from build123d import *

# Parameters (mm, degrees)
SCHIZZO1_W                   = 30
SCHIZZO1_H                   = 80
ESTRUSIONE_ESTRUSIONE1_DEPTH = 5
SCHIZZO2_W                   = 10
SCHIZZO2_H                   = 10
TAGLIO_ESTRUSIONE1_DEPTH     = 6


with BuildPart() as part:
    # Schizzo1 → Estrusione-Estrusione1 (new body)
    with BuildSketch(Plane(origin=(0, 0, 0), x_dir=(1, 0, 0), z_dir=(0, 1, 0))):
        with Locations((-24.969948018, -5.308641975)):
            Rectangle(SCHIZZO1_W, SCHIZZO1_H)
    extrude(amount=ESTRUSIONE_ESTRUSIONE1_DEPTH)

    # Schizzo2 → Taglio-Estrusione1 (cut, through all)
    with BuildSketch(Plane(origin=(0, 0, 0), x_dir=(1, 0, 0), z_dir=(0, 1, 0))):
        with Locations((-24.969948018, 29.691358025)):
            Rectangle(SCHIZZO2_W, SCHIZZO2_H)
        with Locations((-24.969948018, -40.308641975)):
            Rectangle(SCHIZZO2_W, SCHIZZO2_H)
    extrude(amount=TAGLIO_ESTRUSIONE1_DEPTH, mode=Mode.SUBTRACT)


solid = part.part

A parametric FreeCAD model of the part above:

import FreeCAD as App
import Part
import Sketcher
from FreeCAD import Vector
Q = App.Units.Quantity

doc = App.newDocument("Part")
body = doc.addObject("PartDesign::Body", "Body")

# Sketch on XZ plane
sketch1 = body.newObject("Sketcher::SketchObject", "Sketch")
sketch1.AttachmentSupport = (doc.getObject("XZ_Plane"), [""])
sketch1.MapMode = "FlatFace"
sketch1.addGeometry([
    Part.LineSegment(Vector(-40, -35, 0), Vector(-40, 45, 0)),
    Part.LineSegment(Vector(-40, 45, 0), Vector(-10, 45, 0)),
    Part.LineSegment(Vector(-10, 45, 0), Vector(-10, -35, 0)),
    Part.LineSegment(Vector(-10, -35, 0), Vector(-40, -35, 0)),
], False)
sketch1.addConstraint([
    Sketcher.Constraint("Coincident", 0, 2, 1, 1),
    Sketcher.Constraint("Coincident", 1, 2, 2, 1),
    Sketcher.Constraint("Coincident", 2, 2, 3, 1),
    Sketcher.Constraint("Coincident", 3, 2, 0, 1),
    Sketcher.Constraint("Vertical", 0),
    Sketcher.Constraint("Horizontal", 1),
    Sketcher.Constraint("Vertical", 2),
    Sketcher.Constraint("Horizontal", 3),
    Sketcher.Constraint("DistanceX", 1, 1, 1, 2, Q("30 mm")),
    Sketcher.Constraint("DistanceY", 0, 1, 0, 2, Q("80 mm")),
    Sketcher.Constraint("DistanceX", 0, 2, -1, 1, Q("39.969948 mm")),
    Sketcher.Constraint("DistanceY", -1, 1, 0, 2, Q("45.308642 mm")),
])
pad1 = body.newObject("PartDesign::Pad", "Pad")
pad1.Profile = sketch1
pad1.Length = 5
pad1.Reversed = True

# Sketch on XZ plane
sketch2 = body.newObject("Sketcher::SketchObject", "Sketch001")
sketch2.AttachmentSupport = (doc.getObject("XZ_Plane"), [""])
sketch2.MapMode = "FlatFace"
sketch2.addGeometry([
    Part.LineSegment(Vector(-30, -35, 0), Vector(-30, -25, 0)),  # 0
    Part.LineSegment(Vector(-30, -25, 0), Vector(-20, -25, 0)),  # 1
    Part.LineSegment(Vector(-20, -25, 0), Vector(-20, -35, 0)),  # 2
    Part.LineSegment(Vector(-20, -35, 0), Vector(-30, -35, 0)),  # 3
    Part.LineSegment(Vector(-30, 35, 0), Vector(-30, 45, 0)),  # 4
    Part.LineSegment(Vector(-30, 45, 0), Vector(-20, 45, 0)),  # 5
    Part.LineSegment(Vector(-20, 45, 0), Vector(-20, 35, 0)),  # 6
    Part.LineSegment(Vector(-20, 35, 0), Vector(-30, 35, 0)),  # 7
], False)
sketch2.addConstraint([
    Sketcher.Constraint("Coincident", 0, 2, 1, 1),
    Sketcher.Constraint("Coincident", 1, 2, 2, 1),
    Sketcher.Constraint("Coincident", 2, 2, 3, 1),
    Sketcher.Constraint("Coincident", 3, 2, 0, 1),
    Sketcher.Constraint("Coincident", 4, 2, 5, 1),
    Sketcher.Constraint("Coincident", 5, 2, 6, 1),
    Sketcher.Constraint("Coincident", 6, 2, 7, 1),
    Sketcher.Constraint("Coincident", 7, 2, 4, 1),
    Sketcher.Constraint("Vertical", 0),
    Sketcher.Constraint("Horizontal", 1),
    Sketcher.Constraint("Vertical", 2),
    Sketcher.Constraint("Horizontal", 3),
    Sketcher.Constraint("Vertical", 4),
    Sketcher.Constraint("Horizontal", 5),
    Sketcher.Constraint("Vertical", 6),
    Sketcher.Constraint("Horizontal", 7),
    Sketcher.Constraint("Vertical", 3, 2, 4, 2),
    Sketcher.Constraint("Vertical", 2, 2, 5, 2),
    Sketcher.Constraint("Equal", 7, 0),
    Sketcher.Constraint("Equal", 2, 4),
    Sketcher.Constraint("DistanceX", 1, 1, 1, 2, Q("10 mm")),
    Sketcher.Constraint("DistanceY", 0, 2, 4, 2, Q("70 mm")),
    Sketcher.Constraint("DistanceX", 0, 2, -1, 1, Q("29.969948 mm")),
    Sketcher.Constraint("DistanceY", 0, 2, -1, 1, Q("24.691358 mm")),
])
pocket1 = body.newObject("PartDesign::Pocket", "Pocket")
pocket1.Profile = sketch2
pocket1.Type = "ThroughAll"

doc.recompute()
